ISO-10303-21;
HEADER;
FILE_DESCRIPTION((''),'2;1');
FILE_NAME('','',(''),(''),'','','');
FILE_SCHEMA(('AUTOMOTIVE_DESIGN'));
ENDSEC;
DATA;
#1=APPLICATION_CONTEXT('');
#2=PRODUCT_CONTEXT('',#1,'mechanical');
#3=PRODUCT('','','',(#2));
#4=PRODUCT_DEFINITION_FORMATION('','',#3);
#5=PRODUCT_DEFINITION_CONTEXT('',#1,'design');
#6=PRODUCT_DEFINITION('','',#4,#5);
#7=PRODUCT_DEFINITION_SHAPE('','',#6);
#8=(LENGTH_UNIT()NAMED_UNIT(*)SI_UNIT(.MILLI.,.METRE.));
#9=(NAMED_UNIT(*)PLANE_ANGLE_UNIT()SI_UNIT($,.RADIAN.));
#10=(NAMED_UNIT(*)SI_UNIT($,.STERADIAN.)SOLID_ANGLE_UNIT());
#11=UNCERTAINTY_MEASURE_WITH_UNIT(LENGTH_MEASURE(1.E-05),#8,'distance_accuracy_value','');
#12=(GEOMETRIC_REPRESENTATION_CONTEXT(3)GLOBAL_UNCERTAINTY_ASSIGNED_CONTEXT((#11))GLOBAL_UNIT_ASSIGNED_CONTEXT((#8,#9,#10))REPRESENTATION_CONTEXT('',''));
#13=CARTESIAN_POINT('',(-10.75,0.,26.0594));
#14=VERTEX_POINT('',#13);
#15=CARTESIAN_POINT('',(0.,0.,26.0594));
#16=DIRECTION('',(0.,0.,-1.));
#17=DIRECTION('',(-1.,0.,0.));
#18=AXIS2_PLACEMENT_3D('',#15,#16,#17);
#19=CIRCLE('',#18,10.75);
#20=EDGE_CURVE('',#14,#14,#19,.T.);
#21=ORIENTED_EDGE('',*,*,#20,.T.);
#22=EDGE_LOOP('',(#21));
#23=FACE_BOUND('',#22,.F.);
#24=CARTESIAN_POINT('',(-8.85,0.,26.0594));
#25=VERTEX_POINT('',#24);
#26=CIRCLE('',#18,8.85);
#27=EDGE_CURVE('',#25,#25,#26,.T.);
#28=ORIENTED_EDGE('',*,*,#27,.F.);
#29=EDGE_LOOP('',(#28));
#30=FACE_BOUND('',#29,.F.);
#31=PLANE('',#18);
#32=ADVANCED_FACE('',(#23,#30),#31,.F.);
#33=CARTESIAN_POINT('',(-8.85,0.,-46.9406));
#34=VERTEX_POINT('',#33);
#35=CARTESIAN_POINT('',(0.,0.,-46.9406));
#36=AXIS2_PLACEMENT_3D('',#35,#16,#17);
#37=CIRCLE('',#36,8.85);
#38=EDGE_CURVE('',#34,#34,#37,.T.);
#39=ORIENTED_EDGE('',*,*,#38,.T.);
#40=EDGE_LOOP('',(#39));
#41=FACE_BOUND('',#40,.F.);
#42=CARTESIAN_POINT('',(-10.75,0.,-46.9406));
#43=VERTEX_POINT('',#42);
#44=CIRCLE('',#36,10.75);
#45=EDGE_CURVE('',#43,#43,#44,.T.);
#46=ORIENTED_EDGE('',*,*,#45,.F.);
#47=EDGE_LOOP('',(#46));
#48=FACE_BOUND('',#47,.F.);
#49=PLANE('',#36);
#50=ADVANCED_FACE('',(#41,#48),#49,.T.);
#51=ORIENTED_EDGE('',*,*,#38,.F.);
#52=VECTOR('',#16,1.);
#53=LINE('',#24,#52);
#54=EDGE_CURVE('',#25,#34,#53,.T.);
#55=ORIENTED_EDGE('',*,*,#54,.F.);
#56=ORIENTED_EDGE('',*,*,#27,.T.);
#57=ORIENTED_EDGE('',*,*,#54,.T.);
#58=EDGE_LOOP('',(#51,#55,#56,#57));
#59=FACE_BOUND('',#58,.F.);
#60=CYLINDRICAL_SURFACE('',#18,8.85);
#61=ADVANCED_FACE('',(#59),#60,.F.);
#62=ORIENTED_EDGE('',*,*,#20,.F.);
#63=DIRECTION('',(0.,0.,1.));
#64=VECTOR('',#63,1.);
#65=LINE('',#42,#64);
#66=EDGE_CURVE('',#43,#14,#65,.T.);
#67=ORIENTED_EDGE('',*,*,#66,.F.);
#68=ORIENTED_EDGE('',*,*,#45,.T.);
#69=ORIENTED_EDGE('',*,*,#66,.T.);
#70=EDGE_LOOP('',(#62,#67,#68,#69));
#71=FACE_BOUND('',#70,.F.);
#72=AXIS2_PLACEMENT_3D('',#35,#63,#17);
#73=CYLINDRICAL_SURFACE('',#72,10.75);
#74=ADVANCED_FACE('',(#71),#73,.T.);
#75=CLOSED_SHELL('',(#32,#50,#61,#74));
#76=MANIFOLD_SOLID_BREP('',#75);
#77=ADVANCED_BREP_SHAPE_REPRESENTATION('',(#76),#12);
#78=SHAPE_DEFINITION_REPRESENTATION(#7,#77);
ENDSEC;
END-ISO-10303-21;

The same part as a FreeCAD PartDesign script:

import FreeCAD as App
import Part
import Sketcher
from FreeCAD import Vector

doc = App.newDocument("Part")
body = doc.addObject("PartDesign::Body", "Body")

sketch1 = body.newObject("Sketcher::SketchObject", "Sketch")
sketch1.AttachmentSupport = (doc.getObject("XZ_Plane"), [""])
sketch1.MapMode = "FlatFace"
sketch1.addGeometry(Part.LineSegment(Vector(-10.8, -46.9, 0), Vector(-10.8, 26.1, 0)), False)
sketch1.addGeometry(Part.LineSegment(Vector(-10.8, 26.1, 0), Vector(-8.8, 26.1, 0)), False)
sketch1.addGeometry(Part.LineSegment(Vector(-8.8, 26.1, 0), Vector(-8.8, -46.9, 0)), False)
sketch1.addGeometry(Part.LineSegment(Vector(-8.8, -46.9, 0), Vector(-10.8, -46.9, 0)), False)
sketch1.addConstraint(Sketcher.Constraint("Coincident", 0, 2, 1, 1))
sketch1.addConstraint(Sketcher.Constraint("Coincident", 1, 2, 2, 1))
sketch1.addConstraint(Sketcher.Constraint("Coincident", 2, 2, 3, 1))
sketch1.addConstraint(Sketcher.Constraint("Coincident", 3, 2, 0, 1))
sketch1.addConstraint(Sketcher.Constraint("Vertical", 0))
sketch1.addConstraint(Sketcher.Constraint("Horizontal", 1))
sketch1.addConstraint(Sketcher.Constraint("Vertical", 2))
sketch1.addConstraint(Sketcher.Constraint("Horizontal", 3))
sketch1.addConstraint(Sketcher.Constraint("DistanceY", 0, 1, 0, 2, 73.0))
sketch1.addConstraint(Sketcher.Constraint("DistanceX", 1, 1, 1, 2, 1.9))
sketch1.addConstraint(Sketcher.Constraint("DistanceX", 0, 2, -1, 1, 10.75))
sketch1.addConstraint(Sketcher.Constraint("DistanceY", -1, 1, 0, 2, 26.0594))
revolution = body.newObject("PartDesign::Revolution", "Revolution")
revolution.Profile = sketch1
revolution.ReferenceAxis = (sketch1, ["V_Axis"])
revolution.Angle = 360

doc.recompute()
